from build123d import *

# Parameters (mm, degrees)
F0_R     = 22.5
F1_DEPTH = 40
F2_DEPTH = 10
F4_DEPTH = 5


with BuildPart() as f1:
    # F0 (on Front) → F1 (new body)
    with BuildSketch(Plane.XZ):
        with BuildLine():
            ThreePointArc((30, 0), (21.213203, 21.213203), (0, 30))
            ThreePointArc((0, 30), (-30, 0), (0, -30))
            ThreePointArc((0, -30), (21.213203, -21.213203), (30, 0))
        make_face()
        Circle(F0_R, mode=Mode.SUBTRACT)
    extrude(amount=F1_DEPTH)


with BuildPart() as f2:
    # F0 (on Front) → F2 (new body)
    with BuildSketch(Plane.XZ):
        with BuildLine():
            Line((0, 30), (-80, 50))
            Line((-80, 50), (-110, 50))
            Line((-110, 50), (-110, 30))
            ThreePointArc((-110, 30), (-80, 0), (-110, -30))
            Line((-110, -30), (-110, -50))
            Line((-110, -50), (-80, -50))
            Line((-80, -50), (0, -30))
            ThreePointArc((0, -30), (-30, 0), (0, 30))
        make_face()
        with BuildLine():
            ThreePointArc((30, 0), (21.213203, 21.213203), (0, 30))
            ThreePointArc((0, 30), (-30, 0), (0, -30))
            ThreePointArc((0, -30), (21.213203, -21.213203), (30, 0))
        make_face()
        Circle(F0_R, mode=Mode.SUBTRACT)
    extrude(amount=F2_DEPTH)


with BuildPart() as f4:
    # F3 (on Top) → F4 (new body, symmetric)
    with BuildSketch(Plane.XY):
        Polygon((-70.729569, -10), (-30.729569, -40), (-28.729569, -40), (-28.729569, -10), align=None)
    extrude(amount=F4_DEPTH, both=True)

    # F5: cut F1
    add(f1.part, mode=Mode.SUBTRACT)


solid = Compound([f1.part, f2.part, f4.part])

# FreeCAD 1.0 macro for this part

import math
import FreeCAD as App
import Part
import Sketcher

V = App.Vector

doc = App.newDocument("Part")
body = doc.addObject("PartDesign::Body", "Body")

# Sketch on XZ plane
sketch1 = body.newObject("Sketcher::SketchObject", "Sketch")
sketch1.AttachmentSupport = (doc.getObject("XZ_Plane"), [""])
sketch1.MapMode = "FlatFace"
sketch1.addGeometry(Part.ArcOfCircle(Part.Circle(V(0, 0, 0), V(0, 0, 1), 30), math.radians(0), math.radians(90)), False)
sketch1.addGeometry(Part.ArcOfCircle(Part.Circle(V(0, 0, 0), V(0, 0, 1), 30), math.radians(90), math.radians(270)), False)
sketch1.addGeometry(Part.ArcOfCircle(Part.Circle(V(0, 0, 0), V(0, 0, 1), 30), math.radians(-90), math.radians(0)), False)
sketch1.addGeometry(Part.Circle(V(0, 0, 0), V(0, 0, 1), 22), False)
sketch1.addConstraint(Sketcher.Constraint("Tangent", 0, 2, 1, 1))
sketch1.addConstraint(Sketcher.Constraint("Tangent", 1, 2, 2, 1))
sketch1.addConstraint(Sketcher.Constraint("Tangent", 2, 2, 0, 1))
sketch1.addConstraint(Sketcher.Constraint("Coincident", 0, 3, -1, 1))
sketch1.addConstraint(Sketcher.Constraint("Coincident", 3, 3, -1, 1))
sketch1.addConstraint(Sketcher.Constraint("PointOnObject", 0, 2, -2))
sketch1.addConstraint(Sketcher.Constraint("PointOnObject", 1, 2, -2))
sketch1.addConstraint(Sketcher.Constraint("PointOnObject", 2, 2, -1))
sketch1.addConstraint(Sketcher.Constraint("Diameter", 3, 45.0))
sketch1.addConstraint(Sketcher.Constraint("Radius", 0, 30.000001))
pad1 = body.newObject("PartDesign::Pad", "Pad")
pad1.Profile = sketch1
pad1.Length = 40
body2 = doc.addObject("PartDesign::Body", "Body001")

# Sketch on XZ plane
sketch2 = body2.newObject("Sketcher::SketchObject", "Sketch001")
sketch2.AttachmentSupport = (doc.getObject("XZ_Plane001"), [""])
sketch2.MapMode = "FlatFace"
sketch2.addGeometry(Part.LineSegment(V(0, 30, 0), V(-80, 50, 0)), False)
sketch2.addGeometry(Part.LineSegment(V(-80, 50, 0), V(-110, 50, 0)), False)
sketch2.addGeometry(Part.LineSegment(V(-110, 50, 0), V(-110, 30, 0)), False)
sketch2.addGeometry(Part.ArcOfCircle(Part.Circle(V(-110, 0, 0), V(0, 0, 1), 30), math.radians(-90), math.radians(90)), False)
sketch2.addGeometry(Part.LineSegment(V(-110, -30, 0), V(-110, -50, 0)), False)
sketch2.addGeometry(Part.LineSegment(V(-110, -50, 0), V(-80, -50, 0)), False)
sketch2.addGeometry(Part.LineSegment(V(-80, -50, 0), V(0, -30, 0)), False)
sketch2.addGeometry(Part.ArcOfCircle(Part.Circle(V(0, 0, 0), V(0, 0, 1), 30), math.radians(-90), math.radians(0)), False)
sketch2.addGeometry(Part.ArcOfCircle(Part.Circle(V(0, 0, 0), V(0, 0, 1), 30), math.radians(0), math.radians(90)), False)
sketch2.addGeometry(Part.Circle(V(0, 0, 0), V(0, 0, 1), 22), False)
sketch2.addConstraint(Sketcher.Constraint("Coincident", 0, 2, 1, 1))
sketch2.addConstraint(Sketcher.Constraint("Coincident", 1, 2, 2, 1))
sketch2.addConstraint(Sketcher.Constraint("Coincident", 2, 2, 3, 2))
sketch2.addConstraint(Sketcher.Constraint("Coincident", 3, 1, 4, 1))
sketch2.addConstraint(Sketcher.Constraint("Coincident", 4, 2, 5, 1))
sketch2.addConstraint(Sketcher.Constraint("Coincident", 5, 2, 6, 1))
sketch2.addConstraint(Sketcher.Constraint("Coincident", 6, 2, 7, 1))
sketch2.addConstraint(Sketcher.Constraint("Tangent", 7, 2, 8, 1))
sketch2.addConstraint(Sketcher.Constraint("Coincident", 8, 2, 0, 1))
sketch2.addConstraint(Sketcher.Constraint("Horizontal", 1))
sketch2.addConstraint(Sketcher.Constraint("Vertical", 2))
sketch2.addConstraint(Sketcher.Constraint("Vertical", 4))
sketch2.addConstraint(Sketcher.Constraint("Horizontal", 5))
sketch2.addConstraint(Sketcher.Constraint("Coincident", 7, 3, -1, 1))
sketch2.addConstraint(Sketcher.Constraint("Coincident", 9, 3, -1, 1))
sketch2.addConstraint(Sketcher.Constraint("Equal", 3, 7))
sketch2.addConstraint(Sketcher.Constraint("Equal", 7, 8))
sketch2.addConstraint(Sketcher.Constraint("Symmetric", 2, 2, 3, 1, -1))
sketch2.addConstraint(Sketcher.Constraint("Symmetric", 0, 2, 5, 2, -1))
sketch2.addConstraint(Sketcher.Constraint("PointOnObject", 6, 2, -2))
sketch2.addConstraint(Sketcher.Constraint("PointOnObject", 7, 2, -1))
sketch2.addConstraint(Sketcher.Constraint("PointOnObject", 8, 2, -2))
sketch2.addConstraint(Sketcher.Constraint("Vertical", 3, 3, 1, 2))
sketch2.addConstraint(Sketcher.Constraint("Diameter", 9, 45.0))
sketch2.addConstraint(Sketcher.Constraint("Radius", 3, 30.0))
sketch2.addConstraint(Sketcher.Constraint("DistanceX", 1, 2, 1, 1, 30.0))
sketch2.addConstraint(Sketcher.Constraint("DistanceY", 2, 2, 2, 1, 20.0))
sketch2.addConstraint(Sketcher.Constraint("DistanceX", 3, 3, -1, 1, 110.0))
pad2 = body2.newObject("PartDesign::Pad", "Pad001")
pad2.Profile = sketch2
pad2.Length = 10
body3 = doc.addObject("PartDesign::Body", "Body002")

# Sketch on XY plane
sketch3 = body3.newObject("Sketcher::SketchObject", "Sketch002")
sketch3.AttachmentSupport = (doc.getObject("XY_Plane002"), [""])
sketch3.MapMode = "FlatFace"
sketch3.addGeometry(Part.LineSegment(V(-70.7, -10, 0), V(-30.7, -40, 0)), False)
sketch3.addGeometry(Part.LineSegment(V(-30.7, -40, 0), V(-28.7, -40, 0)), False)
sketch3.addGeometry(Part.LineSegment(V(-28.7, -40, 0), V(-28.7, -10, 0)), False)
sketch3.addGeometry(Part.LineSegment(V(-28.7, -10, 0), V(-70.7, -10, 0)), False)
sketch3.addConstraint(Sketcher.Constraint("Coincident", 0, 2, 1, 1))
sketch3.addConstraint(Sketcher.Constraint("Coincident", 1, 2, 2, 1))
sketch3.addConstraint(Sketcher.Constraint("Coincident", 2, 2, 3, 1))
sketch3.addConstraint(Sketcher.Constraint("Coincident", 3, 2, 0, 1))
sketch3.addConstraint(Sketcher.Constraint("Horizontal", 1))
sketch3.addConstraint(Sketcher.Constraint("Vertical", 2))
sketch3.addConstraint(Sketcher.Constraint("Horizontal", 3))
sketch3.addConstraint(Sketcher.Constraint("DistanceX", 1, 1, 1, 2, 2.0))
sketch3.addConstraint(Sketcher.Constraint("DistanceX", 3, 2, 3, 1, 42.0))
sketch3.addConstraint(Sketcher.Constraint("DistanceY", 2, 1, 2, 2, 30.0))
sketch3.addConstraint(Sketcher.Constraint("DistanceY", 0, 2, -1, 1, 40.0))
sketch3.addConstraint(Sketcher.Constraint("DistanceX", 0, 2, -1, 1, 30.729569))
pad3 = body3.newObject("PartDesign::Pad", "Pad002")
pad3.Profile = sketch3
pad3.Length = 10
pad3.Midplane = True
doc.recompute()

body4 = doc.addObject("PartDesign::Body", "Body003")
body4.BaseFeature = body
boolean = body3.newObject("PartDesign::Boolean", "Boolean")
boolean.Type = "Cut"
boolean.addObjects([body4])
doc.recompute()

doc.recompute()
